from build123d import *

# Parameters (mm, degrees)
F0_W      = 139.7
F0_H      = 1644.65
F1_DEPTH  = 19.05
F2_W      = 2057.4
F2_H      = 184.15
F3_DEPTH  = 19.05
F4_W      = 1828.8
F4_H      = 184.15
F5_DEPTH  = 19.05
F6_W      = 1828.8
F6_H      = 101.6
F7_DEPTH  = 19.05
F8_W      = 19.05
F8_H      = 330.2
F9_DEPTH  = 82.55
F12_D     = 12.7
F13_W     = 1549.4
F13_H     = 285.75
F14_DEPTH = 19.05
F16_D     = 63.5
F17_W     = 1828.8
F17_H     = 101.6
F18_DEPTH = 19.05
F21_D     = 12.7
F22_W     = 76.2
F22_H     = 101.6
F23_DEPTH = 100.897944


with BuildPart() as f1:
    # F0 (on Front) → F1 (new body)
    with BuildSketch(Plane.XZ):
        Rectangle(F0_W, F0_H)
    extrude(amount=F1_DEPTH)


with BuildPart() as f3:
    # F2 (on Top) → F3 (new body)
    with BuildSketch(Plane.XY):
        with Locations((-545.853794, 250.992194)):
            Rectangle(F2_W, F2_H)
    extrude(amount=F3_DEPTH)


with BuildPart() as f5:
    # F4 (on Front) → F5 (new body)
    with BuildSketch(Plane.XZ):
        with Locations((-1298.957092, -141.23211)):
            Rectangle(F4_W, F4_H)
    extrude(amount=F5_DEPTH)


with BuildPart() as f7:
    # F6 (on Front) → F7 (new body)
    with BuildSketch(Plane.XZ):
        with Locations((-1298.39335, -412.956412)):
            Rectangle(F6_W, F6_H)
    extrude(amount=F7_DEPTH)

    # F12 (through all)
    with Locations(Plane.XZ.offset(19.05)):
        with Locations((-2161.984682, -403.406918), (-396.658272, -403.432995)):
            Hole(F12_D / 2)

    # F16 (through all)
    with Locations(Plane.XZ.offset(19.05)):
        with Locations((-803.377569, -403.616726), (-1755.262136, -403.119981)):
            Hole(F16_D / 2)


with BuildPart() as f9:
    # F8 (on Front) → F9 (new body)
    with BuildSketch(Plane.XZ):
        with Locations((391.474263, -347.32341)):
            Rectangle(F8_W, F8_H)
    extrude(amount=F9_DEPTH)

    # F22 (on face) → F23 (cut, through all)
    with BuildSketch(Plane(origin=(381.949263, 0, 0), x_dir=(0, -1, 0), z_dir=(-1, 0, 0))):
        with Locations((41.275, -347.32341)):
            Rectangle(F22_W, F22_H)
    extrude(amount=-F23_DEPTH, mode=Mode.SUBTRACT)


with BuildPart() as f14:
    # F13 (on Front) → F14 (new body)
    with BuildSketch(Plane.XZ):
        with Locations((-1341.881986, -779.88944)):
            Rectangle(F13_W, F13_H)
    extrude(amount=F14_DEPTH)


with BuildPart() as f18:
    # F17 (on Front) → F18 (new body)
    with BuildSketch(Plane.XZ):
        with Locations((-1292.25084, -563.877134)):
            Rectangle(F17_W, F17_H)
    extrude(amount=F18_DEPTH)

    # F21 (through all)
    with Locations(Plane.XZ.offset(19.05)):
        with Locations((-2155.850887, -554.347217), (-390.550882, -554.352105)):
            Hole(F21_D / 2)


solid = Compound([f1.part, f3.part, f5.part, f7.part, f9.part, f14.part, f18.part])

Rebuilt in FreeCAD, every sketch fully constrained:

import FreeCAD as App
import Part
import Sketcher
Q = App.Units.Quantity

doc = App.newDocument("Part")
body = doc.addObject("PartDesign::Body", "Body")

# Sketch on XZ plane
sketch1 = body.newObject("Sketcher::SketchObject", "Sketch")
sketch1.AttachmentSupport = (doc.getObject("XZ_Plane"), [""])
sketch1.MapMode = "FlatFace"
sketch1.addGeometry(Part.LineSegment(App.Vector(-70, 822, 0), App.Vector(-70, -822, 0)), False)
sketch1.addGeometry(Part.LineSegment(App.Vector(-70, -822, 0), App.Vector(70, -822, 0)), False)
sketch1.addGeometry(Part.LineSegment(App.Vector(70, -822, 0), App.Vector(70, 822, 0)), False)
sketch1.addGeometry(Part.LineSegment(App.Vector(70, 822, 0), App.Vector(-70, 822, 0)), False)
sketch1.addConstraint(Sketcher.Constraint("Coincident", 0, 2, 1, 1))
sketch1.addConstraint(Sketcher.Constraint("Coincident", 1, 2, 2, 1))
sketch1.addConstraint(Sketcher.Constraint("Coincident", 2, 2, 3, 1))
sketch1.addConstraint(Sketcher.Constraint("Coincident", 3, 2, 0, 1))
sketch1.addConstraint(Sketcher.Constraint("Vertical", 0))
sketch1.addConstraint(Sketcher.Constraint("Horizontal", 1))
sketch1.addConstraint(Sketcher.Constraint("Vertical", 2))
sketch1.addConstraint(Sketcher.Constraint("Horizontal", 3))
sketch1.addConstraint(Sketcher.Constraint("Symmetric", 0, 2, 2, 2, -1, 1))
sketch1.addConstraint(Sketcher.Constraint("DistanceX", 1, 1, 1, 2, Q("5.5 in")))
sketch1.addConstraint(Sketcher.Constraint("DistanceY", 0, 2, 0, 1, Q("64.75 in")))
pad1 = body.newObject("PartDesign::Pad", "Pad")
pad1.Profile = sketch1
pad1.Length = Q("0.75 in")
body2 = doc.addObject("PartDesign::Body", "Body001")

# Sketch on XY plane
sketch2 = body2.newObject("Sketcher::SketchObject", "Sketch001")
sketch2.AttachmentSupport = (doc.getObject("XY_Plane001"), [""])
sketch2.MapMode = "FlatFace"
sketch2.addGeometry(Part.LineSegment(App.Vector(-1575, 343, 0), App.Vector(-1575, 159, 0)), False)
sketch2.addGeometry(Part.LineSegment(App.Vector(-1575, 159, 0), App.Vector(483, 159, 0)), False)
sketch2.addGeometry(Part.LineSegment(App.Vector(483, 159, 0), App.Vector(483, 343, 0)), False)
sketch2.addGeometry(Part.LineSegment(App.Vector(483, 343, 0), App.Vector(-1575, 343, 0)), False)
sketch2.addConstraint(Sketcher.Constraint("Coincident", 0, 2, 1, 1))
sketch2.addConstraint(Sketcher.Constraint("Coincident", 1, 2, 2, 1))
sketch2.addConstraint(Sketcher.Constraint("Coincident", 2, 2, 3, 1))
sketch2.addConstraint(Sketcher.Constraint("Coincident", 3, 2, 0, 1))
sketch2.addConstraint(Sketcher.Constraint("Vertical", 0))
sketch2.addConstraint(Sketcher.Constraint("Horizontal", 1))
sketch2.addConstraint(Sketcher.Constraint("Vertical", 2))
sketch2.addConstraint(Sketcher.Constraint("Horizontal", 3))
sketch2.addConstraint(Sketcher.Constraint("DistanceX", 1, 1, 1, 2, Q("81 in")))
sketch2.addConstraint(Sketcher.Constraint("DistanceY", 0, 2, 0, 1, Q("7.25 in")))
sketch2.addConstraint(Sketcher.Constraint("DistanceX", 0, 2, -1, 1, 1574.553794))
sketch2.addConstraint(Sketcher.Constraint("DistanceY", -1, 1, 0, 2, 158.917194))
pad2 = body2.newObject("PartDesign::Pad", "Pad001")
pad2.Profile = sketch2
pad2.Length = Q("0.75 in")
body3 = doc.addObject("PartDesign::Body", "Body002")

# Sketch on XZ plane
sketch3 = body3.newObject("Sketcher::SketchObject", "Sketch002")
sketch3.AttachmentSupport = (doc.getObject("XZ_Plane002"), [""])
sketch3.MapMode = "FlatFace"
sketch3.addGeometry(Part.LineSegment(App.Vector(-2213, -49, 0), App.Vector(-2213, -233, 0)), False)
sketch3.addGeometry(Part.LineSegment(App.Vector(-2213, -233, 0), App.Vector(-385, -233, 0)), False)
sketch3.addGeometry(Part.LineSegment(App.Vector(-385, -233, 0), App.Vector(-385, -49, 0)), False)
sketch3.addGeometry(Part.LineSegment(App.Vector(-385, -49, 0), App.Vector(-2213, -49, 0)), False)
sketch3.addConstraint(Sketcher.Constraint("Coincident", 0, 2, 1, 1))
sketch3.addConstraint(Sketcher.Constraint("Coincident", 1, 2, 2, 1))
sketch3.addConstraint(Sketcher.Constraint("Coincident", 2, 2, 3, 1))
sketch3.addConstraint(Sketcher.Constraint("Coincident", 3, 2, 0, 1))
sketch3.addConstraint(Sketcher.Constraint("Vertical", 0))
sketch3.addConstraint(Sketcher.Constraint("Horizontal", 1))
sketch3.addConstraint(Sketcher.Constraint("Vertical", 2))
sketch3.addConstraint(Sketcher.Constraint("Horizontal", 3))
sketch3.addConstraint(Sketcher.Constraint("DistanceX", 1, 1, 1, 2, Q("72 in")))
sketch3.addConstraint(Sketcher.Constraint("DistanceY", 0, 2, 0, 1, Q("7.25 in")))
sketch3.addConstraint(Sketcher.Constraint("DistanceY", 0, 2, -1, 1, 233.30711))
sketch3.addConstraint(Sketcher.Constraint("DistanceX", 1, 2, -1, 1, 384.557092))
pad3 = body3.newObject("PartDesign::Pad", "Pad002")
pad3.Profile = sketch3
pad3.Length = Q("0.75 in")
body4 = doc.addObject("PartDesign::Body", "Body003")

# Sketch on XZ plane
sketch4 = body4.newObject("Sketcher::SketchObject", "Sketch003")
sketch4.AttachmentSupport = (doc.getObject("XZ_Plane003"), [""])
sketch4.MapMode = "FlatFace"
sketch4.addGeometry(Part.LineSegment(App.Vector(-2213, -362, 0), App.Vector(-2213, -464, 0)), False)
sketch4.addGeometry(Part.LineSegment(App.Vector(-2213, -464, 0), App.Vector(-384, -464, 0)), False)
sketch4.addGeometry(Part.LineSegment(App.Vector(-384, -464, 0), App.Vector(-384, -362, 0)), False)
sketch4.addGeometry(Part.LineSegment(App.Vector(-384, -362, 0), App.Vector(-2213, -362, 0)), False)
sketch4.addConstraint(Sketcher.Constraint("Coincident", 0, 2, 1, 1))
sketch4.addConstraint(Sketcher.Constraint("Coincident", 1, 2, 2, 1))
sketch4.addConstraint(Sketcher.Constraint("Coincident", 2, 2, 3, 1))
sketch4.addConstraint(Sketcher.Constraint("Coincident", 3, 2, 0, 1))
sketch4.addConstraint(Sketcher.Constraint("Vertical", 0))
sketch4.addConstraint(Sketcher.Constraint("Horizontal", 1))
sketch4.addConstraint(Sketcher.Constraint("Vertical", 2))
sketch4.addConstraint(Sketcher.Constraint("Horizontal", 3))
sketch4.addConstraint(Sketcher.Constraint("DistanceX", 1, 1, 1, 2, Q("72 in")))
sketch4.addConstraint(Sketcher.Constraint("DistanceY", 0, 2, 0, 1, Q("4 in")))
sketch4.addConstraint(Sketcher.Constraint("DistanceX", 0, 2, -1, 1, 2212.79335))
sketch4.addConstraint(Sketcher.Constraint("DistanceY", 0, 2, -1, 1, 463.756412))
pad4 = body4.newObject("PartDesign::Pad", "Pad003")
pad4.Profile = sketch4
pad4.Length = Q("0.75 in")

# Sketch on XZ plane
sketch5 = body4.newObject("Sketcher::SketchObject", "Sketch004")
sketch5.AttachmentSupport = (doc.getObject("XZ_Plane003"), [""])
sketch5.MapMode = "FlatFace"
sketch5.AttachmentOffset = App.Placement(App.Vector(0, 0, 0.75 * 25.4), App.Rotation())
sketch5.addGeometry(Part.Circle(App.Vector(-2162, -403, 0), App.Vector(0, 0, 1), 6), False)
sketch5.addGeometry(Part.Circle(App.Vector(-397, -403, 0), App.Vector(0, 0, 1), 6), False)
sketch5.addConstraint(Sketcher.Constraint("Equal", 0, 1))
sketch5.addConstraint(Sketcher.Constraint("Diameter", 0, Q("0.5 in")))
sketch5.addConstraint(Sketcher.Constraint("DistanceX", 0, 3, -1, 1, 2161.984682))
sketch5.addConstraint(Sketcher.Constraint("DistanceY", 0, 3, -1, 1, 403.406918))
sketch5.addConstraint(Sketcher.Constraint("DistanceX", 1, 3, -1, 1, 396.658272))
sketch5.addConstraint(Sketcher.Constraint("DistanceY", 1, 3, -1, 1, 403.432995))
doc.recompute()
hole = body4.newObject("PartDesign::Hole", "Hole")
hole.Profile = sketch5
hole.ThreadType = "None"
hole.Diameter = Q("0.5 in")
hole.DepthType = "ThroughAll"

# Sketch on XZ plane
sketch6 = body4.newObject("Sketcher::SketchObject", "Sketch005")
sketch6.AttachmentSupport = (doc.getObject("XZ_Plane003"), [""])
sketch6.MapMode = "FlatFace"
sketch6.AttachmentOffset = App.Placement(App.Vector(0, 0, 0.75 * 25.4), App.Rotation())
sketch6.addGeometry(Part.Circle(App.Vector(-803, -404, 0), App.Vector(0, 0, 1), 32), False)
sketch6.addGeometry(Part.Circle(App.Vector(-1755, -403, 0), App.Vector(0, 0, 1), 32), False)
sketch6.addConstraint(Sketcher.Constraint("Equal", 0, 1))
sketch6.addConstraint(Sketcher.Constraint("Diameter", 0, Q("2.5 in")))
sketch6.addConstraint(Sketcher.Constraint("DistanceX", 0, 3, -1, 1, 803.377569))
sketch6.addConstraint(Sketcher.Constraint("DistanceY", 1, 3, -1, 1, 403.119981))
sketch6.addConstraint(Sketcher.Constraint("DistanceY", 0, 3, -1, 1, 403.616726))
sketch6.addConstraint(Sketcher.Constraint("DistanceX", 1, 3, -1, 1, 1755.262136))
doc.recompute()
hole2 = body4.newObject("PartDesign::Hole", "Hole001")
hole2.Profile = sketch6
hole2.ThreadType = "None"
hole2.Diameter = Q("2.5 in")
hole2.DepthType = "ThroughAll"
body5 = doc.addObject("PartDesign::Body", "Body004")

# Sketch on XZ plane
sketch7 = body5.newObject("Sketcher::SketchObject", "Sketch006")
sketch7.AttachmentSupport = (doc.getObject("XZ_Plane004"), [""])
sketch7.MapMode = "FlatFace"
sketch7.addGeometry(Part.LineSegment(App.Vector(382, -182, 0), App.Vector(382, -512, 0)), False)
sketch7.addGeometry(Part.LineSegment(App.Vector(382, -512, 0), App.Vector(401, -512, 0)), False)
sketch7.addGeometry(Part.LineSegment(App.Vector(401, -512, 0), App.Vector(401, -182, 0)), False)
sketch7.addGeometry(Part.LineSegment(App.Vector(401, -182, 0), App.Vector(382, -182, 0)), False)
sketch7.addConstraint(Sketcher.Constraint("Coincident", 0, 2, 1, 1))
sketch7.addConstraint(Sketcher.Constraint("Coincident", 1, 2, 2, 1))
sketch7.addConstraint(Sketcher.Constraint("Coincident", 2, 2, 3, 1))
sketch7.addConstraint(Sketcher.Constraint("Coincident", 3, 2, 0, 1))
sketch7.addConstraint(Sketcher.Constraint("Vertical", 0))
sketch7.addConstraint(Sketcher.Constraint("Horizontal", 1))
sketch7.addConstraint(Sketcher.Constraint("Vertical", 2))
sketch7.addConstraint(Sketcher.Constraint("Horizontal", 3))
sketch7.addConstraint(Sketcher.Constraint("DistanceY", 0, 2, 0, 1, Q("13 in")))
sketch7.addConstraint(Sketcher.Constraint("DistanceX", 1, 1, 1, 2, Q("0.75 in")))
sketch7.addConstraint(Sketcher.Constraint("DistanceY", 0, 2, -1, 1, 512.42341))
sketch7.addConstraint(Sketcher.Constraint("DistanceX", -1, 1, 0, 2, 381.949263))
pad5 = body5.newObject("PartDesign::Pad", "Pad004")
pad5.Profile = sketch7
pad5.Length = Q("3.25 in")

# Sketch on YZ plane
sketch8 = body5.newObject("Sketcher::SketchObject", "Sketch007")
sketch8.AttachmentSupport = (doc.getObject("YZ_Plane004"), [""])
sketch8.MapMode = "FlatFace"
sketch8.AttachmentOffset = App.Placement(App.Vector(0, 0, 381.949263), App.Rotation())
sketch8.addGeometry(Part.LineSegment(App.Vector(-3, -297, 0), App.Vector(-3, -398, 0)), False)
sketch8.addGeometry(Part.LineSegment(App.Vector(-3, -398, 0), App.Vector(-79, -398, 0)), False)
sketch8.addGeometry(Part.LineSegment(App.Vector(-79, -398, 0), App.Vector(-79, -297, 0)), False)
sketch8.addGeometry(Part.LineSegment(App.Vector(-79, -297, 0), App.Vector(-3, -297, 0)), False)
sketch8.addConstraint(Sketcher.Constraint("Coincident", 0, 2, 1, 1))
sketch8.addConstraint(Sketcher.Constraint("Coincident", 1, 2, 2, 1))
sketch8.addConstraint(Sketcher.Constraint("Coincident", 2, 2, 3, 1))
sketch8.addConstraint(Sketcher.Constraint("Coincident", 3, 2, 0, 1))
sketch8.addConstraint(Sketcher.Constraint("Vertical", 0))
sketch8.addConstraint(Sketcher.Constraint("Horizontal", 1))
sketch8.addConstraint(Sketcher.Constraint("Vertical", 2))
sketch8.addConstraint(Sketcher.Constraint("Horizontal", 3))
sketch8.addConstraint(Sketcher.Constraint("DistanceX", 1, 2, 1, 1, Q("3 in")))
sketch8.addConstraint(Sketcher.Constraint("DistanceY", 0, 2, 0, 1, Q("4 in")))
sketch8.addConstraint(Sketcher.Constraint("DistanceX", 0, 2, -1, 1, Q("0.125 in")))
sketch8.addConstraint(Sketcher.Constraint("DistanceY", 0, 2, -1, 1, 398.12341))
pocket1 = body5.newObject("PartDesign::Pocket", "Pocket")
pocket1.Profile = sketch8
pocket1.Type = "ThroughAll"
pocket1.Reversed = True
body6 = doc.addObject("PartDesign::Body", "Body005")

# Sketch on XZ plane
sketch9 = body6.newObject("Sketcher::SketchObject", "Sketch008")
sketch9.AttachmentSupport = (doc.getObject("XZ_Plane005"), [""])
sketch9.MapMode = "FlatFace"
sketch9.addGeometry(Part.LineSegment(App.Vector(-2117, -637, 0), App.Vector(-2117, -923, 0)), False)
sketch9.addGeometry(Part.LineSegment(App.Vector(-2117, -923, 0), App.Vector(-567, -923, 0)), False)
sketch9.addGeometry(Part.LineSegment(App.Vector(-567, -923, 0), App.Vector(-567, -637, 0)), False)
sketch9.addGeometry(Part.LineSegment(App.Vector(-567, -637, 0), App.Vector(-2117, -637, 0)), False)
sketch9.addConstraint(Sketcher.Constraint("Coincident", 0, 2, 1, 1))
sketch9.addConstraint(Sketcher.Constraint("Coincident", 1, 2, 2, 1))
sketch9.addConstraint(Sketcher.Constraint("Coincident", 2, 2, 3, 1))
sketch9.addConstraint(Sketcher.Constraint("Coincident", 3, 2, 0, 1))
sketch9.addConstraint(Sketcher.Constraint("Vertical", 0))
sketch9.addConstraint(Sketcher.Constraint("Horizontal", 1))
sketch9.addConstraint(Sketcher.Constraint("Vertical", 2))
sketch9.addConstraint(Sketcher.Constraint("Horizontal", 3))
sketch9.addConstraint(Sketcher.Constraint("DistanceX", 1, 1, 1, 2, Q("61 in")))
sketch9.addConstraint(Sketcher.Constraint("DistanceY", 0, 2, 0, 1, Q("11.25 in")))
sketch9.addConstraint(Sketcher.Constraint("DistanceY", 0, 2, -1, 1, 922.76444))
sketch9.addConstraint(Sketcher.Constraint("DistanceX", 0, 2, -1, 1, 2116.581986))
pad6 = body6.newObject("PartDesign::Pad", "Pad005")
pad6.Profile = sketch9
pad6.Length = Q("0.75 in")
body7 = doc.addObject("PartDesign::Body", "Body006")

# Sketch on XZ plane
sketch10 = body7.newObject("Sketcher::SketchObject", "Sketch009")
sketch10.AttachmentSupport = (doc.getObject("XZ_Plane006"), [""])
sketch10.MapMode = "FlatFace"
sketch10.addGeometry(Part.LineSegment(App.Vector(-2207, -513, 0), App.Vector(-2207, -615, 0)), False)
sketch10.addGeometry(Part.LineSegment(App.Vector(-2207, -615, 0), App.Vector(-378, -615, 0)), False)
sketch10.addGeometry(Part.LineSegment(App.Vector(-378, -615, 0), App.Vector(-378, -513, 0)), False)
sketch10.addGeometry(Part.LineSegment(App.Vector(-378, -513, 0), App.Vector(-2207, -513, 0)), False)
sketch10.addConstraint(Sketcher.Constraint("Coincident", 0, 2, 1, 1))
sketch10.addConstraint(Sketcher.Constraint("Coincident", 1, 2, 2, 1))
sketch10.addConstraint(Sketcher.Constraint("Coincident", 2, 2, 3, 1))
sketch10.addConstraint(Sketcher.Constraint("Coincident", 3, 2, 0, 1))
sketch10.addConstraint(Sketcher.Constraint("Vertical", 0))
sketch10.addConstraint(Sketcher.Constraint("Horizontal", 1))
sketch10.addConstraint(Sketcher.Constraint("Vertical", 2))
sketch10.addConstraint(Sketcher.Constraint("Horizontal", 3))
sketch10.addConstraint(Sketcher.Constraint("DistanceX", 1, 1, 1, 2, Q("72 in")))
sketch10.addConstraint(Sketcher.Constraint("DistanceY", 0, 2, 0, 1, Q("4 in")))
sketch10.addConstraint(Sketcher.Constraint("DistanceX", 0, 2, -1, 1, 2206.65084))
sketch10.addConstraint(Sketcher.Constraint("DistanceY", 0, 2, -1, 1, 614.677134))
pad7 = body7.newObject("PartDesign::Pad", "Pad006")
pad7.Profile = sketch10
pad7.Length = Q("0.75 in")

# Sketch on XZ plane
sketch11 = body7.newObject("Sketcher::SketchObject", "Sketch010")
sketch11.AttachmentSupport = (doc.getObject("XZ_Plane006"), [""])
sketch11.MapMode = "FlatFace"
sketch11.AttachmentOffset = App.Placement(App.Vector(0, 0, 0.75 * 25.4), App.Rotation())
sketch11.addGeometry(Part.Circle(App.Vector(-2156, -554, 0), App.Vector(0, 0, 1), 6), False)
sketch11.addGeometry(Part.Circle(App.Vector(-391, -554, 0), App.Vector(0, 0, 1), 6), False)
sketch11.addConstraint(Sketcher.Constraint("Equal", 0, 1))
sketch11.addConstraint(Sketcher.Constraint("Diameter", 0, Q("0.5 in")))
sketch11.addConstraint(Sketcher.Constraint("DistanceX", 0, 3, 1, 3, Q("69.5000002 in")))
sketch11.addConstraint(Sketcher.Constraint("DistanceX", 1, 3, -1, 1, 390.550882))
sketch11.addConstraint(Sketcher.Constraint("DistanceY", 1, 3, 0, 3, 0.004888))
sketch11.addConstraint(Sketcher.Constraint("DistanceY", 0, 3, -1, 1, 554.347217))
doc.recompute()
hole3 = body7.newObject("PartDesign::Hole", "Hole002")
hole3.Profile = sketch11
hole3.ThreadType = "None"
hole3.Diameter = Q("0.5 in")
hole3.DepthType = "ThroughAll"

doc.recompute()
